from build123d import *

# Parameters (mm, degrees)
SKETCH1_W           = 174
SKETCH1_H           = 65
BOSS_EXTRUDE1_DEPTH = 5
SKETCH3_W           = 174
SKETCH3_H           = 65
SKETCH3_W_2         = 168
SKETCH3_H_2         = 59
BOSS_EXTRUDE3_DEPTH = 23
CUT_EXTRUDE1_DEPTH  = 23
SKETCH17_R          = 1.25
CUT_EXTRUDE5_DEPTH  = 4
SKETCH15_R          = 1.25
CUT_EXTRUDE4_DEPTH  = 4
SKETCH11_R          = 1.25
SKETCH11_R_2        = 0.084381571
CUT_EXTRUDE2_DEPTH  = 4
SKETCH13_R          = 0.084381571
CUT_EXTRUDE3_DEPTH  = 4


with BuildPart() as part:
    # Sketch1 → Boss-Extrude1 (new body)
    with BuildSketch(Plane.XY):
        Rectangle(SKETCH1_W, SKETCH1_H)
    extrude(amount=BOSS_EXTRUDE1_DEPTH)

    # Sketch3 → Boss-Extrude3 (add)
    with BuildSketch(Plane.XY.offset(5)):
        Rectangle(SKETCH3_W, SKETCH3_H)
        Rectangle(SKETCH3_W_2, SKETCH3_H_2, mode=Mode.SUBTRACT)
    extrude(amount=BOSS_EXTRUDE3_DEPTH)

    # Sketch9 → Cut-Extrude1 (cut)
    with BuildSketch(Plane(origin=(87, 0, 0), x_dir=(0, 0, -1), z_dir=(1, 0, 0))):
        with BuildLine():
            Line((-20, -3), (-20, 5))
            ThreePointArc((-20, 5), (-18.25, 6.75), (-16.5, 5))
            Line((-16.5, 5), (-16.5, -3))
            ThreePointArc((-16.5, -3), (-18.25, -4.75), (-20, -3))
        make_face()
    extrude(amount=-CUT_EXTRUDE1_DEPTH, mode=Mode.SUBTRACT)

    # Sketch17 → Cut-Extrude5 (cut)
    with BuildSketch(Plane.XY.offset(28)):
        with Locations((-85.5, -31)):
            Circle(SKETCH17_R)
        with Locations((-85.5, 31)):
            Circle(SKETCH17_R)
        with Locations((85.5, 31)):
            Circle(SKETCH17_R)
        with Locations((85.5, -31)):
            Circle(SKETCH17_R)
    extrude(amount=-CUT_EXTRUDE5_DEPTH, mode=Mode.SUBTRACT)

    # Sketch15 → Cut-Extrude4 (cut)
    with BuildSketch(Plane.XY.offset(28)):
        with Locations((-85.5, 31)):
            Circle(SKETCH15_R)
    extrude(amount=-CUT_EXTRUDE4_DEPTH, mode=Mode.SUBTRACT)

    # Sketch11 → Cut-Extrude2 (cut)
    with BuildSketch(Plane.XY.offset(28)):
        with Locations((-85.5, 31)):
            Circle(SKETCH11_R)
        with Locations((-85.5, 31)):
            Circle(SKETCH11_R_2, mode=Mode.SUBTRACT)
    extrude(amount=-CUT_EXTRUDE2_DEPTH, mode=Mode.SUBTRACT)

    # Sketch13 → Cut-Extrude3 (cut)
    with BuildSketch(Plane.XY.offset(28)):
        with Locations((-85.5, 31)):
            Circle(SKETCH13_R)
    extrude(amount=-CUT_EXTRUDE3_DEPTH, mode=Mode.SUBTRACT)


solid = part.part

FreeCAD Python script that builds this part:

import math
import FreeCAD as App
import Part
import Sketcher


def add_polygon(sketch, points):
    """Adds a closed chain of lines whose ends are joined by coincident constraints."""
    first, n = sketch.GeometryCount, len(points)
    for a, b in zip(points, points[1:] + points[:1]):
        sketch.addGeometry(Part.LineSegment(App.Vector(*a, 0), App.Vector(*b, 0)), False)
    for i in range(n):
        sketch.addConstraint(Sketcher.Constraint("Coincident", first + i, 2, first + (i + 1) % n, 1))

doc = App.newDocument("Part")
body = doc.addObject("PartDesign::Body", "Body")

sketch1 = body.newObject("Sketcher::SketchObject", "Sketch")
sketch1.AttachmentSupport = (doc.getObject("XY_Plane"), [""])
sketch1.MapMode = "FlatFace"
add_polygon(sketch1, [(-87, 32.5), (-87, -32.5), (87, -32.5), (87, 32.5)])
sketch1.addConstraint([
    Sketcher.Constraint("Vertical", 0),
    Sketcher.Constraint("Horizontal", 1),
    Sketcher.Constraint("Vertical", 2),
    Sketcher.Constraint("Horizontal", 3),
    Sketcher.Constraint("Symmetric", 0, 2, 2, 2, -1, 1),
    Sketcher.Constraint("DistanceX", 1, 1, 1, 2, 174.0),
    Sketcher.Constraint("DistanceY", 0, 2, 0, 1, 65.0),
])
pad1 = body.newObject("PartDesign::Pad", "Pad")
pad1.Profile = sketch1
pad1.Length = 5

sketch2 = body.newObject("Sketcher::SketchObject", "Sketch001")
sketch2.AttachmentSupport = (doc.getObject("XY_Plane"), [""])
sketch2.MapMode = "FlatFace"
sketch2.AttachmentOffset = App.Placement(App.Vector(0, 0, 5), App.Rotation())
add_polygon(sketch2, [(-87, 32.5), (-87, -32.5), (87, -32.5), (87, 32.5)])
add_polygon(sketch2, [(84, -29.5), (-84, -29.5), (-84, 29.5), (84, 29.5)])
sketch2.addConstraint([
    Sketcher.Constraint("Vertical", 0),
    Sketcher.Constraint("Horizontal", 1),
    Sketcher.Constraint("Vertical", 2),
    Sketcher.Constraint("Horizontal", 3),
    Sketcher.Constraint("Horizontal", 4),
    Sketcher.Constraint("Vertical", 5),
    Sketcher.Constraint("Horizontal", 6),
    Sketcher.Constraint("Vertical", 7),
    Sketcher.Constraint("Symmetric", 0, 2, 2, 2, -1, 1),
    Sketcher.Constraint("Symmetric", 4, 2, 6, 2, -1, 1),
    Sketcher.Constraint("DistanceX", 1, 1, 1, 2, 174.0),
    Sketcher.Constraint("DistanceX", 4, 2, 4, 1, 168.0),
    Sketcher.Constraint("DistanceY", 0, 2, 0, 1, 65.0),
    Sketcher.Constraint("DistanceY", 5, 1, 5, 2, 59.0),
])
pad2 = body.newObject("PartDesign::Pad", "Pad001")
pad2.Profile = sketch2
pad2.Length = 23

sketch3 = body.newObject("Sketcher::SketchObject", "Sketch002")
sketch3.AttachmentSupport = (doc.getObject("YZ_Plane"), [""])
sketch3.MapMode = "FlatFace"
sketch3.AttachmentOffset = App.Placement(App.Vector(0, 0, 87), App.Rotation())
sketch3.addGeometry([
    Part.LineSegment(App.Vector(5, 20, 0), App.Vector(-3, 20, 0)),
    Part.ArcOfCircle(Part.Circle(App.Vector(-3, 18.25, 0), App.Vector(0, 0, 1), 1.75), math.radians(90), math.radians(270)),
    Part.LineSegment(App.Vector(-3, 16.5, 0), App.Vector(5, 16.5, 0)),
    Part.ArcOfCircle(Part.Circle(App.Vector(5, 18.25, 0), App.Vector(0, 0, 1), 1.75), math.radians(-90), math.radians(90)),
], False)
sketch3.addConstraint([
    Sketcher.Constraint("Tangent", 0, 2, 1, 1),
    Sketcher.Constraint("Tangent", 1, 2, 2, 1),
    Sketcher.Constraint("Tangent", 2, 2, 3, 1),
    Sketcher.Constraint("Tangent", 3, 2, 0, 1),
    Sketcher.Constraint("Horizontal", 0),
    Sketcher.Constraint("Horizontal", 2),
    Sketcher.Constraint("DistanceX", 0, 2, 0, 1, 8.0),
    Sketcher.Constraint("Radius", 1, 1.75),
    Sketcher.Constraint("DistanceX", 1, 3, -1, 1, 3.0),
    Sketcher.Constraint("DistanceY", -1, 1, 0, 2, 20.0),
])
pocket1 = body.newObject("PartDesign::Pocket", "Pocket")
pocket1.Profile = sketch3
pocket1.Length = 23

sketch4 = body.newObject("Sketcher::SketchObject", "Sketch003")
sketch4.AttachmentSupport = (doc.getObject("XY_Plane"), [""])
sketch4.MapMode = "FlatFace"
sketch4.AttachmentOffset = App.Placement(App.Vector(0, 0, 28), App.Rotation())
sketch4.addGeometry([
    Part.Circle(App.Vector(-85.5, -31, 0), App.Vector(0, 0, 1), 1.25),
    Part.Circle(App.Vector(-85.5, 31, 0), App.Vector(0, 0, 1), 1.25),
    Part.Circle(App.Vector(85.5, 31, 0), App.Vector(0, 0, 1), 1.25),
    Part.Circle(App.Vector(85.5, -31, 0), App.Vector(0, 0, 1), 1.25),
], False)
sketch4.addConstraint([
    Sketcher.Constraint("Equal", 0, 1),
    Sketcher.Constraint("Equal", 1, 2),
    Sketcher.Constraint("Equal", 2, 3),
    Sketcher.Constraint("Symmetric", 0, 3, 2, 3, -1, 1),
    Sketcher.Constraint("Symmetric", 1, 3, 3, 3, -1, 1),
    Sketcher.Constraint("Symmetric", 1, 3, 2, 3, -2),
    Sketcher.Constraint("Diameter", 0, 2.5),
    Sketcher.Constraint("DistanceY", 0, 3, -1, 1, 31.0),
    Sketcher.Constraint("DistanceX", 1, 3, 2, 3, 171.0),
])
pocket2 = body.newObject("PartDesign::Pocket", "Pocket001")
pocket2.Profile = sketch4
pocket2.Length = 4

sketch5 = body.newObject("Sketcher::SketchObject", "Sketch004")
sketch5.AttachmentSupport = (doc.getObject("XY_Plane"), [""])
sketch5.MapMode = "FlatFace"
sketch5.AttachmentOffset = App.Placement(App.Vector(0, 0, 28), App.Rotation())
sketch5.addGeometry(Part.Circle(App.Vector(-85.5, 31, 0), App.Vector(0, 0, 1), 1.25), False)
sketch5.addConstraint([
    Sketcher.Constraint("Diameter", 0, 2.5),
    Sketcher.Constraint("DistanceY", -1, 1, 0, 3, 31.0),
    Sketcher.Constraint("DistanceX", 0, 3, -1, 1, 85.5),
])
pocket3 = body.newObject("PartDesign::Pocket", "Pocket002")
pocket3.Profile = sketch5
pocket3.Length = 4

sketch6 = body.newObject("Sketcher::SketchObject", "Sketch005")
sketch6.AttachmentSupport = (doc.getObject("XY_Plane"), [""])
sketch6.MapMode = "FlatFace"
sketch6.AttachmentOffset = App.Placement(App.Vector(0, 0, 28), App.Rotation())
sketch6.addGeometry([
    Part.Circle(App.Vector(-85.5, 31, 0), App.Vector(0, 0, 1), 1.25),
    Part.Circle(App.Vector(-85.5, 31, 0), App.Vector(0, 0, 1), 0.084382),
], False)
sketch6.addConstraint([
    Sketcher.Constraint("Coincident", 1, 3, 0, 3),
    Sketcher.Constraint("Diameter", 0, 2.5),
    Sketcher.Constraint("DistanceY", -1, 1, 0, 3, 31.0),
    Sketcher.Constraint("DistanceX", 0, 3, -1, 1, 85.5),
    Sketcher.Constraint("Diameter", 1, 0.168763),
])
pocket4 = body.newObject("PartDesign::Pocket", "Pocket003")
pocket4.Profile = sketch6
pocket4.Length = 4

sketch7 = body.newObject("Sketcher::SketchObject", "Sketch006")
sketch7.AttachmentSupport = (doc.getObject("XY_Plane"), [""])
sketch7.MapMode = "FlatFace"
sketch7.AttachmentOffset = App.Placement(App.Vector(0, 0, 28), App.Rotation())
sketch7.addGeometry(Part.Circle(App.Vector(-85.5, 31, 0), App.Vector(0, 0, 1), 0.084382), False)
sketch7.addConstraint([
    Sketcher.Constraint("DistanceY", -1, 1, 0, 3, 31.0),
    Sketcher.Constraint("DistanceX", 0, 3, -1, 1, 85.5),
    Sketcher.Constraint("Diameter", 0, 0.168763),
])
pocket5 = body.newObject("PartDesign::Pocket", "Pocket004")
pocket5.Profile = sketch7
pocket5.Length = 4

doc.recompute()
